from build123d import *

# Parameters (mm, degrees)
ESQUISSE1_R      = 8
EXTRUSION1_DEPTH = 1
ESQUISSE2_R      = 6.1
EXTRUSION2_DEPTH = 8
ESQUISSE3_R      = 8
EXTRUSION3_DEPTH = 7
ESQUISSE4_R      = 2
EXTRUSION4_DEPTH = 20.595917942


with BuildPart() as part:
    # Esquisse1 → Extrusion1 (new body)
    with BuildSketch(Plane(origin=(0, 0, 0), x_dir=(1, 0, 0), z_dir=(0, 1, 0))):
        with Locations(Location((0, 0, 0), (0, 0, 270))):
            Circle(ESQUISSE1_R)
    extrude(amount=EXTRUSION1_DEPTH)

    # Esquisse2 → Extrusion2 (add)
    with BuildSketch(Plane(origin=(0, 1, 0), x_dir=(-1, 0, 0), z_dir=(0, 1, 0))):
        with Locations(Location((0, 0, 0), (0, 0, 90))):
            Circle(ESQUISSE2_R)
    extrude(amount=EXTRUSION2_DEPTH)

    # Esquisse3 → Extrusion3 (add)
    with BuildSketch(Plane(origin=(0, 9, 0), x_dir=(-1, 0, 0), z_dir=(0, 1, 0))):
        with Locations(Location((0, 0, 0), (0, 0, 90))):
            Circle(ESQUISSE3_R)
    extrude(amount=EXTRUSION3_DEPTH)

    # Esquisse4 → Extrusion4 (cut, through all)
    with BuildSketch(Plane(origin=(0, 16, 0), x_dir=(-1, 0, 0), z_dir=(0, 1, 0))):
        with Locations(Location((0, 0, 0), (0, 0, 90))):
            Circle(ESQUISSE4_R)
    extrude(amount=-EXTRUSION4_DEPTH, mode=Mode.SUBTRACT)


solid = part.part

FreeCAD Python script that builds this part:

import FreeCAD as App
import Part
import Sketcher

doc = App.newDocument("Part")
body = doc.addObject("PartDesign::Body", "Body")

sketch1 = body.newObject("Sketcher::SketchObject", "Sketch")
sketch1.AttachmentSupport = (doc.getObject("XZ_Plane"), [""])
sketch1.MapMode = "FlatFace"
sketch1.addGeometry(Part.Circle(App.Vector(0, 0, 0), App.Vector(0, 0, 1), 8), False)
sketch1.addConstraint(Sketcher.Constraint("Coincident", 0, 3, -1, 1))
sketch1.addConstraint(Sketcher.Constraint("Diameter", 0, 16.0))
pad1 = body.newObject("PartDesign::Pad", "Pad")
pad1.Profile = sketch1
pad1.Length = 1
pad1.Reversed = True

sketch2 = body.newObject("Sketcher::SketchObject", "Sketch001")
sketch2.AttachmentSupport = (doc.getObject("XZ_Plane"), [""])
sketch2.MapMode = "FlatFace"
sketch2.AttachmentOffset = App.Placement(App.Vector(0, 0, -1), App.Rotation())
sketch2.addGeometry(Part.Circle(App.Vector(0, 0, 0), App.Vector(0, 0, 1), 6.1), False)
sketch2.addConstraint(Sketcher.Constraint("Coincident", 0, 3, -1, 1))
sketch2.addConstraint(Sketcher.Constraint("Diameter", 0, 12.2))
pad2 = body.newObject("PartDesign::Pad", "Pad001")
pad2.Profile = sketch2
pad2.Length = 8
pad2.Reversed = True

sketch3 = body.newObject("Sketcher::SketchObject", "Sketch002")
sketch3.AttachmentSupport = (doc.getObject("XZ_Plane"), [""])
sketch3.MapMode = "FlatFace"
sketch3.AttachmentOffset = App.Placement(App.Vector(0, 0, -9), App.Rotation())
sketch3.addGeometry(Part.Circle(App.Vector(0, 0, 0), App.Vector(0, 0, 1), 8), False)
sketch3.addConstraint(Sketcher.Constraint("Coincident", 0, 3, -1, 1))
sketch3.addConstraint(Sketcher.Constraint("Diameter", 0, 16.0))
pad3 = body.newObject("PartDesign::Pad", "Pad002")
pad3.Profile = sketch3
pad3.Length = 7
pad3.Reversed = True

sketch4 = body.newObject("Sketcher::SketchObject", "Sketch003")
sketch4.AttachmentSupport = (doc.getObject("XZ_Plane"), [""])
sketch4.MapMode = "FlatFace"
sketch4.AttachmentOffset = App.Placement(App.Vector(0, 0, -16), App.Rotation())
sketch4.addGeometry(Part.Circle(App.Vector(0, 0, 0), App.Vector(0, 0, 1), 2), False)
sketch4.addConstraint(Sketcher.Constraint("Coincident", 0, 3, -1, 1))
sketch4.addConstraint(Sketcher.Constraint("Diameter", 0, 4.0))
pocket1 = body.newObject("PartDesign::Pocket", "Pocket")
pocket1.Profile = sketch4
pocket1.Type = "ThroughAll"
pocket1.Reversed = True

doc.recompute()
